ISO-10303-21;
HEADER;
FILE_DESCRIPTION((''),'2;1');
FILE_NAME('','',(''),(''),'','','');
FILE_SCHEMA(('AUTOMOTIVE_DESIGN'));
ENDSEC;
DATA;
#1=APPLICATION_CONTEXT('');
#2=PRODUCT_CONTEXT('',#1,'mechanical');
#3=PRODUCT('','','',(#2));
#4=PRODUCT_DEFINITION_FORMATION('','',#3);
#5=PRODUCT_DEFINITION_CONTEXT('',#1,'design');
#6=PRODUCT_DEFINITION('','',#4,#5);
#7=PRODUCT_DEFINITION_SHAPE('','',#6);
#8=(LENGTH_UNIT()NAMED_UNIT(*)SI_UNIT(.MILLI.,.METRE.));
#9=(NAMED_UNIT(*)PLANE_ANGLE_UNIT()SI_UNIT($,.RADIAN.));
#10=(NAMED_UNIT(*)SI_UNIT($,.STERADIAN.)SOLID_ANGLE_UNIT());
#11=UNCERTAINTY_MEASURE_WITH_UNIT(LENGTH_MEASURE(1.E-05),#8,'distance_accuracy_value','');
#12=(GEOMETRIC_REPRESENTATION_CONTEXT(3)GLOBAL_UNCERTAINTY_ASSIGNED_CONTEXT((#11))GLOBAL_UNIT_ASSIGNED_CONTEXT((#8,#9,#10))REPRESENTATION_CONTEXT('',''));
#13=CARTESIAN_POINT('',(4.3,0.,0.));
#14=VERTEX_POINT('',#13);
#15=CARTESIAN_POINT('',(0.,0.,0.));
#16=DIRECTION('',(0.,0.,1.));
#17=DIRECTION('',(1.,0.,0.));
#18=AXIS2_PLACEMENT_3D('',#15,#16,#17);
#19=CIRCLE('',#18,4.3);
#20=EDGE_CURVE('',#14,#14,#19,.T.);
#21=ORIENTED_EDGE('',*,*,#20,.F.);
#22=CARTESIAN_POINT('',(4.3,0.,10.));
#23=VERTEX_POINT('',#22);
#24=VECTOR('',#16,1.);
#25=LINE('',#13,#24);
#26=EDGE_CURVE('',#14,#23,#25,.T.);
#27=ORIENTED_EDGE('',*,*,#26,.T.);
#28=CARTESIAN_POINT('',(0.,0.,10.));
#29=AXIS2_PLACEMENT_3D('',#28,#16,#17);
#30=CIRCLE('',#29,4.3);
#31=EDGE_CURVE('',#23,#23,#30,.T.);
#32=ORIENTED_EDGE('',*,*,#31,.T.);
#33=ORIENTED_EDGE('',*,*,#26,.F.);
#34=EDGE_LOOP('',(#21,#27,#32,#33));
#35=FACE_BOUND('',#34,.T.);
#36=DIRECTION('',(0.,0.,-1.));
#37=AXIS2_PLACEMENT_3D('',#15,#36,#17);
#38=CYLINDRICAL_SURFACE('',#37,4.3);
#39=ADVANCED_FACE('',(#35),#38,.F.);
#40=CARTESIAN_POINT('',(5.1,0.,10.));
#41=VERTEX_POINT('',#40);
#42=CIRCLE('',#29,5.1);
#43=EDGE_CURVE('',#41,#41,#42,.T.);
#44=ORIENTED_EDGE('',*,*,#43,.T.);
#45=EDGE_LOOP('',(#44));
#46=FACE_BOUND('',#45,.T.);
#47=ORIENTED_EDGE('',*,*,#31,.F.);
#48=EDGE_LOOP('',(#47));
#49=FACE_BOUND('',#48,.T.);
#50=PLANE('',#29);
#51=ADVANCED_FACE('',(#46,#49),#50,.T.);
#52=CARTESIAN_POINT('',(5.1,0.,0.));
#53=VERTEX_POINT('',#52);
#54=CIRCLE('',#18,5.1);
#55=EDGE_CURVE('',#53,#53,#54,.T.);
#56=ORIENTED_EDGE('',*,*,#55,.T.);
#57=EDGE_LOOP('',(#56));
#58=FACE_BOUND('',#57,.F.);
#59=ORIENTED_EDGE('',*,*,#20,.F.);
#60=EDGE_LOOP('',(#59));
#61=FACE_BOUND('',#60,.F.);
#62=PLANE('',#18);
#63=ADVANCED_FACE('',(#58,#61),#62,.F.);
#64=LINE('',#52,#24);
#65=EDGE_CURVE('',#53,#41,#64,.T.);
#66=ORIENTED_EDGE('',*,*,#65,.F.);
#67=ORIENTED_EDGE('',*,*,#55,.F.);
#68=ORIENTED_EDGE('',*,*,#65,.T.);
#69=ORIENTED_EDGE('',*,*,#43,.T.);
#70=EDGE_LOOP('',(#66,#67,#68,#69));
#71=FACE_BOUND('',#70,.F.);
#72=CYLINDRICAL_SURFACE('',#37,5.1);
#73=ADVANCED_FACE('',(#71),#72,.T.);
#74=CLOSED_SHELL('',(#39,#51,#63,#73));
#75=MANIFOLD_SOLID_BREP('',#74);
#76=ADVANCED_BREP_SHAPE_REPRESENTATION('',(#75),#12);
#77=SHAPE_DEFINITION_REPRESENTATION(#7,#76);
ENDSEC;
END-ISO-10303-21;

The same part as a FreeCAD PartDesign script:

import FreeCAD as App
import Part
import Sketcher

V = App.Vector

doc = App.newDocument("Part")
body = doc.addObject("PartDesign::Body", "Body")

# Sketch on XY plane
sketch1 = body.newObject("Sketcher::SketchObject", "Sketch")
sketch1.AttachmentSupport = (doc.getObject("XY_Plane"), [""])
sketch1.MapMode = "FlatFace"
sketch1.addGeometry(Part.Circle(V(0, 0, 0), V(0, 0, 1), 5.1), False)
sketch1.addGeometry(Part.Circle(V(0, 0, 0), V(0, 0, 1), 4.3), False)
sketch1.addConstraint(Sketcher.Constraint("Coincident", 0, 3, -1, 1))
sketch1.addConstraint(Sketcher.Constraint("Coincident", 1, 3, -1, 1))
sketch1.addConstraint(Sketcher.Constraint("Diameter", 0, 10.2))
sketch1.addConstraint(Sketcher.Constraint("Diameter", 1, 8.6))
pad1 = body.newObject("PartDesign::Pad", "Pad")
pad1.Profile = sketch1
pad1.Length = 10

doc.recompute()
